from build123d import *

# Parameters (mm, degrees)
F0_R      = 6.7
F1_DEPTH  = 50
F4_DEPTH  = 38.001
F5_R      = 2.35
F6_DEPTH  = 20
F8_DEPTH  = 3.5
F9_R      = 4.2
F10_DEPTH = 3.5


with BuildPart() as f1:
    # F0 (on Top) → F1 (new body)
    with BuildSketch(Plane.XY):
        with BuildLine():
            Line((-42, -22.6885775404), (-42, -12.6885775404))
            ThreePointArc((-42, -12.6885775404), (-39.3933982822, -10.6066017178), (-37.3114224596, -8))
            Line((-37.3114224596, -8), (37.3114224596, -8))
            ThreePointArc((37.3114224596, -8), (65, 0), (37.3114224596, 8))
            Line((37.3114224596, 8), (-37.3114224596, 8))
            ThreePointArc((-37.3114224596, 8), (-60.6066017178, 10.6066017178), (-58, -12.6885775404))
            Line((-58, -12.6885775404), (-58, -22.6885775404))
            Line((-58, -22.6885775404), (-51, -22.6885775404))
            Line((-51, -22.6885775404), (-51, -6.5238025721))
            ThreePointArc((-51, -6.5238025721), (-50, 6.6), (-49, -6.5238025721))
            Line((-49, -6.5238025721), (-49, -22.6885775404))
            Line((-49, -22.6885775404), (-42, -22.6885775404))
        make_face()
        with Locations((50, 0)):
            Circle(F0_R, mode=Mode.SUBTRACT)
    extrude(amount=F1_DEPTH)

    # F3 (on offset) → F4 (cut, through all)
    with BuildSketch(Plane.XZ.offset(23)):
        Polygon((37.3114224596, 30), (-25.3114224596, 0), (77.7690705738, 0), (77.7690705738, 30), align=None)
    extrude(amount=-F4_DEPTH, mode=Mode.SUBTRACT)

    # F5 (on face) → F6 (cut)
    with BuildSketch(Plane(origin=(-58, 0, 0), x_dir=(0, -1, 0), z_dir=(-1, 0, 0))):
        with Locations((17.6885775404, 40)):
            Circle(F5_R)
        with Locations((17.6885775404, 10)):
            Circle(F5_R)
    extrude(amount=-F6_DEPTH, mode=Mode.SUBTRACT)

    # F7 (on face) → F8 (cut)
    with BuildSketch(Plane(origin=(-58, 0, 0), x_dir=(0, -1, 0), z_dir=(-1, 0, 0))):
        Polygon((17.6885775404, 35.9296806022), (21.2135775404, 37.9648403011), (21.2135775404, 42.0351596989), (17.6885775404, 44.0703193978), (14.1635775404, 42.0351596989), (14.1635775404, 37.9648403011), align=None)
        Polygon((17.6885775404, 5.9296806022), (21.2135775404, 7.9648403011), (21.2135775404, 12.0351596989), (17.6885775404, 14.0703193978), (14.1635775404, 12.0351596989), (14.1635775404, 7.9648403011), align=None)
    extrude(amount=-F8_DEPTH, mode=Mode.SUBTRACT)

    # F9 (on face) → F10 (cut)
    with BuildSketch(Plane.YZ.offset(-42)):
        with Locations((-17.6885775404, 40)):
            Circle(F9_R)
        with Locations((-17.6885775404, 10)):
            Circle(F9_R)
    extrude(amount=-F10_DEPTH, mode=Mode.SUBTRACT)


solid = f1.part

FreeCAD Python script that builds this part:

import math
import FreeCAD as App
import Part
import Sketcher

V = App.Vector
Q = App.Units.Quantity

doc = App.newDocument("Part")
body = doc.addObject("PartDesign::Body", "Body")

sketch1 = body.newObject("Sketcher::SketchObject", "Sketch")
sketch1.AttachmentSupport = (doc.getObject("XY_Plane"), [""])
sketch1.MapMode = "FlatFace"
sketch1.addGeometry([
    Part.LineSegment(V(-42, -22.688578, 0), V(-42, -12.688578, 0)),
    Part.ArcOfCircle(Part.Circle(V(-50, 0, 0), V(0, 0, 1), 15), math.radians(-57.769047), math.radians(-32.230953)),
    Part.LineSegment(V(-37.311422, -8, 0), V(37.311422, -8, 0)),
    Part.ArcOfCircle(Part.Circle(V(50, 0, 0), V(0, 0, 1), 15), math.radians(-147.769047), math.radians(147.769047)),
    Part.LineSegment(V(37.311422, 8, 0), V(-37.311422, 8, 0)),
    Part.ArcOfCircle(Part.Circle(V(-50, 0, 0), V(0, 0, 1), 15), math.radians(32.230953), math.radians(237.769047)),
    Part.LineSegment(V(-58, -12.688578, 0), V(-58, -22.688578, 0)),
    Part.LineSegment(V(-58, -22.688578, 0), V(-51, -22.688578, 0)),
    Part.LineSegment(V(-51, -22.688578, 0), V(-51, -6.523803, 0)),
    Part.ArcOfCircle(Part.Circle(V(-50, 0, 0), V(0, 0, 1), 6.6), math.radians(-81.285258), math.radians(261.285258)),
    Part.LineSegment(V(-49, -6.523803, 0), V(-49, -22.688578, 0)),
    Part.LineSegment(V(-49, -22.688578, 0), V(-42, -22.688578, 0)),
    Part.Circle(V(50, 0, 0), V(0, 0, 1), 6.7),
], False)
sketch1.addConstraint([
    Sketcher.Constraint("Coincident", 0, 2, 1, 1),
    Sketcher.Constraint("Coincident", 1, 2, 2, 1),
    Sketcher.Constraint("Coincident", 2, 2, 3, 1),
    Sketcher.Constraint("Coincident", 3, 2, 4, 1),
    Sketcher.Constraint("Coincident", 4, 2, 5, 1),
    Sketcher.Constraint("Coincident", 5, 2, 6, 1),
    Sketcher.Constraint("Coincident", 6, 2, 7, 1),
    Sketcher.Constraint("Coincident", 7, 2, 8, 1),
    Sketcher.Constraint("Coincident", 8, 2, 9, 2),
    Sketcher.Constraint("Coincident", 9, 1, 10, 1),
    Sketcher.Constraint("Coincident", 10, 2, 11, 1),
    Sketcher.Constraint("Coincident", 11, 2, 0, 1),
    Sketcher.Constraint("Vertical", 0),
    Sketcher.Constraint("Horizontal", 2),
    Sketcher.Constraint("Horizontal", 4),
    Sketcher.Constraint("Vertical", 6),
    Sketcher.Constraint("Horizontal", 7),
    Sketcher.Constraint("Vertical", 8),
    Sketcher.Constraint("Vertical", 10),
    Sketcher.Constraint("Horizontal", 11),
    Sketcher.Constraint("Coincident", 5, 3, 1, 3),
    Sketcher.Constraint("Coincident", 9, 3, 1, 3),
    Sketcher.Constraint("Coincident", 12, 3, 3, 3),
    Sketcher.Constraint("Equal", 1, 3),
    Sketcher.Constraint("Equal", 3, 5),
    Sketcher.Constraint("Symmetric", 1, 3, 3, 3, -1, 1),
    Sketcher.Constraint("Symmetric", 2, 2, 3, 2, -1),
    Sketcher.Constraint("Horizontal", 0, 2, 5, 2),
    Sketcher.Constraint("Horizontal", 8, 2, 9, 1),
    Sketcher.Constraint("Horizontal", 7, 2, 10, 2),
    Sketcher.Constraint("Radius", 1, Q("15 mm")),
    Sketcher.Constraint("Diameter", 12, Q("13.4 mm")),
    Sketcher.Constraint("Radius", 9, Q("6.6 mm")),
    Sketcher.Constraint("DistanceX", 7, 1, 7, 2, Q("7 mm")),
    Sketcher.Constraint("DistanceY", 0, 1, 0, 2, Q("10 mm")),
    Sketcher.Constraint("DistanceX", 1, 3, -1, 1, Q("50 mm")),
    Sketcher.Constraint("DistanceX", 0, 2, -1, 1, Q("42 mm")),
    Sketcher.Constraint("DistanceY", 1, 2, -1, 1, Q("8 mm")),
])
pad1 = body.newObject("PartDesign::Pad", "Pad")
pad1.Profile = sketch1
pad1.Length = 50

sketch2 = body.newObject("Sketcher::SketchObject", "Sketch001")
sketch2.AttachmentSupport = (doc.getObject("XZ_Plane"), [""])
sketch2.MapMode = "FlatFace"
sketch2.AttachmentOffset = App.Placement(V(0, 0, 23), App.Rotation())
sketch2.addGeometry([
    Part.LineSegment(V(37.311422, 30, 0), V(-25.311422, 0, 0)),
    Part.LineSegment(V(-25.311422, 0, 0), V(77.769071, 0, 0)),
    Part.LineSegment(V(77.769071, 0, 0), V(77.769071, 30, 0)),
    Part.LineSegment(V(77.769071, 30, 0), V(37.311422, 30, 0)),
], False)
sketch2.addConstraint([
    Sketcher.Constraint("Coincident", 0, 2, 1, 1),
    Sketcher.Constraint("Coincident", 1, 2, 2, 1),
    Sketcher.Constraint("Coincident", 2, 2, 3, 1),
    Sketcher.Constraint("Coincident", 3, 2, 0, 1),
    Sketcher.Constraint("Horizontal", 1),
    Sketcher.Constraint("Vertical", 2),
    Sketcher.Constraint("Horizontal", 3),
    Sketcher.Constraint("PointOnObject", 0, 2, -1),
    Sketcher.Constraint("DistanceY", 2, 1, 2, 2, Q("30 mm")),
    Sketcher.Constraint("DistanceX", 3, 2, 3, 1, Q("40.457648 mm")),
    Sketcher.Constraint("Distance", 0, Q("69.437891 mm")),
    Sketcher.Constraint("DistanceX", -1, 1, 1, 2, Q("77.769071 mm")),
])
pocket1 = body.newObject("PartDesign::Pocket", "Pocket")
pocket1.Profile = sketch2
pocket1.Type = "ThroughAll"

sketch3 = body.newObject("Sketcher::SketchObject", "Sketch002")
sketch3.AttachmentSupport = (doc.getObject("YZ_Plane"), [""])
sketch3.MapMode = "FlatFace"
sketch3.AttachmentOffset = App.Placement(V(0, 0, -58), App.Rotation())
sketch3.addGeometry([
    Part.Circle(V(-17.688578, 40, 0), V(0, 0, 1), 2.35),
    Part.Circle(V(-17.688578, 10, 0), V(0, 0, 1), 2.35),
], False)
sketch3.addConstraint([
    Sketcher.Constraint("Equal", 0, 1),
    Sketcher.Constraint("Vertical", 0, 3, 1, 3),
    Sketcher.Constraint("Diameter", 0, Q("4.7 mm")),
    Sketcher.Constraint("DistanceY", -1, 1, 0, 3, Q("40 mm")),
    Sketcher.Constraint("DistanceY", -1, 1, 1, 3, Q("10 mm")),
    Sketcher.Constraint("DistanceX", 0, 3, -1, 1, Q("17.688578 mm")),
])
pocket2 = body.newObject("PartDesign::Pocket", "Pocket001")
pocket2.Profile = sketch3
pocket2.Length = 20
pocket2.Reversed = True

sketch4 = body.newObject("Sketcher::SketchObject", "Sketch003")
sketch4.AttachmentSupport = (doc.getObject("YZ_Plane"), [""])
sketch4.MapMode = "FlatFace"
sketch4.AttachmentOffset = App.Placement(V(0, 0, -58), App.Rotation())
sketch4.addGeometry([
    Part.LineSegment(V(-17.688578, 35.929681, 0), V(-21.213578, 37.96484, 0)),
    Part.LineSegment(V(-21.213578, 37.96484, 0), V(-21.213578, 42.03516, 0)),
    Part.LineSegment(V(-21.213578, 42.03516, 0), V(-17.688578, 44.070319, 0)),
    Part.LineSegment(V(-17.688578, 44.070319, 0), V(-14.163578, 42.03516, 0)),
    Part.LineSegment(V(-14.163578, 42.03516, 0), V(-14.163578, 37.96484, 0)),
    Part.LineSegment(V(-14.163578, 37.96484, 0), V(-17.688578, 35.929681, 0)),
    Part.LineSegment(V(-17.688578, 5.929681, 0), V(-21.213578, 7.96484, 0)),
    Part.LineSegment(V(-21.213578, 7.96484, 0), V(-21.213578, 12.03516, 0)),
    Part.LineSegment(V(-21.213578, 12.03516, 0), V(-17.688578, 14.070319, 0)),
    Part.LineSegment(V(-17.688578, 14.070319, 0), V(-14.163578, 12.03516, 0)),
    Part.LineSegment(V(-14.163578, 12.03516, 0), V(-14.163578, 7.96484, 0)),
    Part.LineSegment(V(-14.163578, 7.96484, 0), V(-17.688578, 5.929681, 0)),
], False)
sketch4.addConstraint([
    Sketcher.Constraint("Coincident", 0, 2, 1, 1),
    Sketcher.Constraint("Coincident", 1, 2, 2, 1),
    Sketcher.Constraint("Coincident", 2, 2, 3, 1),
    Sketcher.Constraint("Coincident", 3, 2, 4, 1),
    Sketcher.Constraint("Coincident", 4, 2, 5, 1),
    Sketcher.Constraint("Coincident", 5, 2, 0, 1),
    Sketcher.Constraint("Coincident", 6, 2, 7, 1),
    Sketcher.Constraint("Coincident", 7, 2, 8, 1),
    Sketcher.Constraint("Coincident", 8, 2, 9, 1),
    Sketcher.Constraint("Coincident", 9, 2, 10, 1),
    Sketcher.Constraint("Coincident", 10, 2, 11, 1),
    Sketcher.Constraint("Coincident", 11, 2, 6, 1),
    Sketcher.Constraint("Vertical", 1),
    Sketcher.Constraint("Vertical", 4),
    Sketcher.Constraint("Vertical", 7),
    Sketcher.Constraint("Vertical", 10),
    Sketcher.Constraint("Parallel", 0, 3),
    Sketcher.Constraint("Parallel", 2, 5),
    Sketcher.Constraint("Parallel", 3, 6),
    Sketcher.Constraint("Parallel", 5, 8),
    Sketcher.Constraint("Parallel", 6, 9),
    Sketcher.Constraint("Parallel", 8, 11),
    Sketcher.Constraint("Horizontal", 1, 2, 3, 2),
    Sketcher.Constraint("Horizontal", 0, 2, 4, 2),
    Sketcher.Constraint("Horizontal", 7, 2, 9, 2),
    Sketcher.Constraint("Horizontal", 6, 2, 10, 2),
    Sketcher.Constraint("Vertical", 2, 2, 5, 2),
    Sketcher.Constraint("Vertical", 1, 2, 6, 2),
    Sketcher.Constraint("Vertical", 5, 2, 8, 2),
    Sketcher.Constraint("Equal", 4, 7),
    Sketcher.Constraint("Angle", 0, Q("150 deg")),
    Sketcher.Constraint("DistanceY", 6, 2, 0, 2, Q("30 mm")),
    Sketcher.Constraint("DistanceX", 1, 2, 3, 2, Q("7.05 mm")),
    Sketcher.Constraint("DistanceY", 1, 1, 1, 2, Q("4.070319 mm")),
    Sketcher.Constraint("DistanceY", -1, 1, 0, 2, Q("37.96484 mm")),
    Sketcher.Constraint("DistanceX", 0, 2, -1, 1, Q("21.213578 mm")),
])
pocket3 = body.newObject("PartDesign::Pocket", "Pocket002")
pocket3.Profile = sketch4
pocket3.Length = 3.5
pocket3.Reversed = True

sketch5 = body.newObject("Sketcher::SketchObject", "Sketch004")
sketch5.AttachmentSupport = (doc.getObject("YZ_Plane"), [""])
sketch5.MapMode = "FlatFace"
sketch5.AttachmentOffset = App.Placement(V(0, 0, -42), App.Rotation())
sketch5.addGeometry([
    Part.Circle(V(-17.688578, 40, 0), V(0, 0, 1), 4.2),
    Part.Circle(V(-17.688578, 10, 0), V(0, 0, 1), 4.2),
], False)
sketch5.addConstraint([
    Sketcher.Constraint("Equal", 0, 1),
    Sketcher.Constraint("Vertical", 0, 3, 1, 3),
    Sketcher.Constraint("Diameter", 0, Q("8.4 mm")),
    Sketcher.Constraint("DistanceY", -1, 1, 0, 3, Q("40 mm")),
    Sketcher.Constraint("DistanceY", -1, 1, 1, 3, Q("10 mm")),
    Sketcher.Constraint("DistanceX", 0, 3, -1, 1, Q("17.688578 mm")),
])
pocket4 = body.newObject("PartDesign::Pocket", "Pocket003")
pocket4.Profile = sketch5
pocket4.Length = 3.5

doc.recompute()
